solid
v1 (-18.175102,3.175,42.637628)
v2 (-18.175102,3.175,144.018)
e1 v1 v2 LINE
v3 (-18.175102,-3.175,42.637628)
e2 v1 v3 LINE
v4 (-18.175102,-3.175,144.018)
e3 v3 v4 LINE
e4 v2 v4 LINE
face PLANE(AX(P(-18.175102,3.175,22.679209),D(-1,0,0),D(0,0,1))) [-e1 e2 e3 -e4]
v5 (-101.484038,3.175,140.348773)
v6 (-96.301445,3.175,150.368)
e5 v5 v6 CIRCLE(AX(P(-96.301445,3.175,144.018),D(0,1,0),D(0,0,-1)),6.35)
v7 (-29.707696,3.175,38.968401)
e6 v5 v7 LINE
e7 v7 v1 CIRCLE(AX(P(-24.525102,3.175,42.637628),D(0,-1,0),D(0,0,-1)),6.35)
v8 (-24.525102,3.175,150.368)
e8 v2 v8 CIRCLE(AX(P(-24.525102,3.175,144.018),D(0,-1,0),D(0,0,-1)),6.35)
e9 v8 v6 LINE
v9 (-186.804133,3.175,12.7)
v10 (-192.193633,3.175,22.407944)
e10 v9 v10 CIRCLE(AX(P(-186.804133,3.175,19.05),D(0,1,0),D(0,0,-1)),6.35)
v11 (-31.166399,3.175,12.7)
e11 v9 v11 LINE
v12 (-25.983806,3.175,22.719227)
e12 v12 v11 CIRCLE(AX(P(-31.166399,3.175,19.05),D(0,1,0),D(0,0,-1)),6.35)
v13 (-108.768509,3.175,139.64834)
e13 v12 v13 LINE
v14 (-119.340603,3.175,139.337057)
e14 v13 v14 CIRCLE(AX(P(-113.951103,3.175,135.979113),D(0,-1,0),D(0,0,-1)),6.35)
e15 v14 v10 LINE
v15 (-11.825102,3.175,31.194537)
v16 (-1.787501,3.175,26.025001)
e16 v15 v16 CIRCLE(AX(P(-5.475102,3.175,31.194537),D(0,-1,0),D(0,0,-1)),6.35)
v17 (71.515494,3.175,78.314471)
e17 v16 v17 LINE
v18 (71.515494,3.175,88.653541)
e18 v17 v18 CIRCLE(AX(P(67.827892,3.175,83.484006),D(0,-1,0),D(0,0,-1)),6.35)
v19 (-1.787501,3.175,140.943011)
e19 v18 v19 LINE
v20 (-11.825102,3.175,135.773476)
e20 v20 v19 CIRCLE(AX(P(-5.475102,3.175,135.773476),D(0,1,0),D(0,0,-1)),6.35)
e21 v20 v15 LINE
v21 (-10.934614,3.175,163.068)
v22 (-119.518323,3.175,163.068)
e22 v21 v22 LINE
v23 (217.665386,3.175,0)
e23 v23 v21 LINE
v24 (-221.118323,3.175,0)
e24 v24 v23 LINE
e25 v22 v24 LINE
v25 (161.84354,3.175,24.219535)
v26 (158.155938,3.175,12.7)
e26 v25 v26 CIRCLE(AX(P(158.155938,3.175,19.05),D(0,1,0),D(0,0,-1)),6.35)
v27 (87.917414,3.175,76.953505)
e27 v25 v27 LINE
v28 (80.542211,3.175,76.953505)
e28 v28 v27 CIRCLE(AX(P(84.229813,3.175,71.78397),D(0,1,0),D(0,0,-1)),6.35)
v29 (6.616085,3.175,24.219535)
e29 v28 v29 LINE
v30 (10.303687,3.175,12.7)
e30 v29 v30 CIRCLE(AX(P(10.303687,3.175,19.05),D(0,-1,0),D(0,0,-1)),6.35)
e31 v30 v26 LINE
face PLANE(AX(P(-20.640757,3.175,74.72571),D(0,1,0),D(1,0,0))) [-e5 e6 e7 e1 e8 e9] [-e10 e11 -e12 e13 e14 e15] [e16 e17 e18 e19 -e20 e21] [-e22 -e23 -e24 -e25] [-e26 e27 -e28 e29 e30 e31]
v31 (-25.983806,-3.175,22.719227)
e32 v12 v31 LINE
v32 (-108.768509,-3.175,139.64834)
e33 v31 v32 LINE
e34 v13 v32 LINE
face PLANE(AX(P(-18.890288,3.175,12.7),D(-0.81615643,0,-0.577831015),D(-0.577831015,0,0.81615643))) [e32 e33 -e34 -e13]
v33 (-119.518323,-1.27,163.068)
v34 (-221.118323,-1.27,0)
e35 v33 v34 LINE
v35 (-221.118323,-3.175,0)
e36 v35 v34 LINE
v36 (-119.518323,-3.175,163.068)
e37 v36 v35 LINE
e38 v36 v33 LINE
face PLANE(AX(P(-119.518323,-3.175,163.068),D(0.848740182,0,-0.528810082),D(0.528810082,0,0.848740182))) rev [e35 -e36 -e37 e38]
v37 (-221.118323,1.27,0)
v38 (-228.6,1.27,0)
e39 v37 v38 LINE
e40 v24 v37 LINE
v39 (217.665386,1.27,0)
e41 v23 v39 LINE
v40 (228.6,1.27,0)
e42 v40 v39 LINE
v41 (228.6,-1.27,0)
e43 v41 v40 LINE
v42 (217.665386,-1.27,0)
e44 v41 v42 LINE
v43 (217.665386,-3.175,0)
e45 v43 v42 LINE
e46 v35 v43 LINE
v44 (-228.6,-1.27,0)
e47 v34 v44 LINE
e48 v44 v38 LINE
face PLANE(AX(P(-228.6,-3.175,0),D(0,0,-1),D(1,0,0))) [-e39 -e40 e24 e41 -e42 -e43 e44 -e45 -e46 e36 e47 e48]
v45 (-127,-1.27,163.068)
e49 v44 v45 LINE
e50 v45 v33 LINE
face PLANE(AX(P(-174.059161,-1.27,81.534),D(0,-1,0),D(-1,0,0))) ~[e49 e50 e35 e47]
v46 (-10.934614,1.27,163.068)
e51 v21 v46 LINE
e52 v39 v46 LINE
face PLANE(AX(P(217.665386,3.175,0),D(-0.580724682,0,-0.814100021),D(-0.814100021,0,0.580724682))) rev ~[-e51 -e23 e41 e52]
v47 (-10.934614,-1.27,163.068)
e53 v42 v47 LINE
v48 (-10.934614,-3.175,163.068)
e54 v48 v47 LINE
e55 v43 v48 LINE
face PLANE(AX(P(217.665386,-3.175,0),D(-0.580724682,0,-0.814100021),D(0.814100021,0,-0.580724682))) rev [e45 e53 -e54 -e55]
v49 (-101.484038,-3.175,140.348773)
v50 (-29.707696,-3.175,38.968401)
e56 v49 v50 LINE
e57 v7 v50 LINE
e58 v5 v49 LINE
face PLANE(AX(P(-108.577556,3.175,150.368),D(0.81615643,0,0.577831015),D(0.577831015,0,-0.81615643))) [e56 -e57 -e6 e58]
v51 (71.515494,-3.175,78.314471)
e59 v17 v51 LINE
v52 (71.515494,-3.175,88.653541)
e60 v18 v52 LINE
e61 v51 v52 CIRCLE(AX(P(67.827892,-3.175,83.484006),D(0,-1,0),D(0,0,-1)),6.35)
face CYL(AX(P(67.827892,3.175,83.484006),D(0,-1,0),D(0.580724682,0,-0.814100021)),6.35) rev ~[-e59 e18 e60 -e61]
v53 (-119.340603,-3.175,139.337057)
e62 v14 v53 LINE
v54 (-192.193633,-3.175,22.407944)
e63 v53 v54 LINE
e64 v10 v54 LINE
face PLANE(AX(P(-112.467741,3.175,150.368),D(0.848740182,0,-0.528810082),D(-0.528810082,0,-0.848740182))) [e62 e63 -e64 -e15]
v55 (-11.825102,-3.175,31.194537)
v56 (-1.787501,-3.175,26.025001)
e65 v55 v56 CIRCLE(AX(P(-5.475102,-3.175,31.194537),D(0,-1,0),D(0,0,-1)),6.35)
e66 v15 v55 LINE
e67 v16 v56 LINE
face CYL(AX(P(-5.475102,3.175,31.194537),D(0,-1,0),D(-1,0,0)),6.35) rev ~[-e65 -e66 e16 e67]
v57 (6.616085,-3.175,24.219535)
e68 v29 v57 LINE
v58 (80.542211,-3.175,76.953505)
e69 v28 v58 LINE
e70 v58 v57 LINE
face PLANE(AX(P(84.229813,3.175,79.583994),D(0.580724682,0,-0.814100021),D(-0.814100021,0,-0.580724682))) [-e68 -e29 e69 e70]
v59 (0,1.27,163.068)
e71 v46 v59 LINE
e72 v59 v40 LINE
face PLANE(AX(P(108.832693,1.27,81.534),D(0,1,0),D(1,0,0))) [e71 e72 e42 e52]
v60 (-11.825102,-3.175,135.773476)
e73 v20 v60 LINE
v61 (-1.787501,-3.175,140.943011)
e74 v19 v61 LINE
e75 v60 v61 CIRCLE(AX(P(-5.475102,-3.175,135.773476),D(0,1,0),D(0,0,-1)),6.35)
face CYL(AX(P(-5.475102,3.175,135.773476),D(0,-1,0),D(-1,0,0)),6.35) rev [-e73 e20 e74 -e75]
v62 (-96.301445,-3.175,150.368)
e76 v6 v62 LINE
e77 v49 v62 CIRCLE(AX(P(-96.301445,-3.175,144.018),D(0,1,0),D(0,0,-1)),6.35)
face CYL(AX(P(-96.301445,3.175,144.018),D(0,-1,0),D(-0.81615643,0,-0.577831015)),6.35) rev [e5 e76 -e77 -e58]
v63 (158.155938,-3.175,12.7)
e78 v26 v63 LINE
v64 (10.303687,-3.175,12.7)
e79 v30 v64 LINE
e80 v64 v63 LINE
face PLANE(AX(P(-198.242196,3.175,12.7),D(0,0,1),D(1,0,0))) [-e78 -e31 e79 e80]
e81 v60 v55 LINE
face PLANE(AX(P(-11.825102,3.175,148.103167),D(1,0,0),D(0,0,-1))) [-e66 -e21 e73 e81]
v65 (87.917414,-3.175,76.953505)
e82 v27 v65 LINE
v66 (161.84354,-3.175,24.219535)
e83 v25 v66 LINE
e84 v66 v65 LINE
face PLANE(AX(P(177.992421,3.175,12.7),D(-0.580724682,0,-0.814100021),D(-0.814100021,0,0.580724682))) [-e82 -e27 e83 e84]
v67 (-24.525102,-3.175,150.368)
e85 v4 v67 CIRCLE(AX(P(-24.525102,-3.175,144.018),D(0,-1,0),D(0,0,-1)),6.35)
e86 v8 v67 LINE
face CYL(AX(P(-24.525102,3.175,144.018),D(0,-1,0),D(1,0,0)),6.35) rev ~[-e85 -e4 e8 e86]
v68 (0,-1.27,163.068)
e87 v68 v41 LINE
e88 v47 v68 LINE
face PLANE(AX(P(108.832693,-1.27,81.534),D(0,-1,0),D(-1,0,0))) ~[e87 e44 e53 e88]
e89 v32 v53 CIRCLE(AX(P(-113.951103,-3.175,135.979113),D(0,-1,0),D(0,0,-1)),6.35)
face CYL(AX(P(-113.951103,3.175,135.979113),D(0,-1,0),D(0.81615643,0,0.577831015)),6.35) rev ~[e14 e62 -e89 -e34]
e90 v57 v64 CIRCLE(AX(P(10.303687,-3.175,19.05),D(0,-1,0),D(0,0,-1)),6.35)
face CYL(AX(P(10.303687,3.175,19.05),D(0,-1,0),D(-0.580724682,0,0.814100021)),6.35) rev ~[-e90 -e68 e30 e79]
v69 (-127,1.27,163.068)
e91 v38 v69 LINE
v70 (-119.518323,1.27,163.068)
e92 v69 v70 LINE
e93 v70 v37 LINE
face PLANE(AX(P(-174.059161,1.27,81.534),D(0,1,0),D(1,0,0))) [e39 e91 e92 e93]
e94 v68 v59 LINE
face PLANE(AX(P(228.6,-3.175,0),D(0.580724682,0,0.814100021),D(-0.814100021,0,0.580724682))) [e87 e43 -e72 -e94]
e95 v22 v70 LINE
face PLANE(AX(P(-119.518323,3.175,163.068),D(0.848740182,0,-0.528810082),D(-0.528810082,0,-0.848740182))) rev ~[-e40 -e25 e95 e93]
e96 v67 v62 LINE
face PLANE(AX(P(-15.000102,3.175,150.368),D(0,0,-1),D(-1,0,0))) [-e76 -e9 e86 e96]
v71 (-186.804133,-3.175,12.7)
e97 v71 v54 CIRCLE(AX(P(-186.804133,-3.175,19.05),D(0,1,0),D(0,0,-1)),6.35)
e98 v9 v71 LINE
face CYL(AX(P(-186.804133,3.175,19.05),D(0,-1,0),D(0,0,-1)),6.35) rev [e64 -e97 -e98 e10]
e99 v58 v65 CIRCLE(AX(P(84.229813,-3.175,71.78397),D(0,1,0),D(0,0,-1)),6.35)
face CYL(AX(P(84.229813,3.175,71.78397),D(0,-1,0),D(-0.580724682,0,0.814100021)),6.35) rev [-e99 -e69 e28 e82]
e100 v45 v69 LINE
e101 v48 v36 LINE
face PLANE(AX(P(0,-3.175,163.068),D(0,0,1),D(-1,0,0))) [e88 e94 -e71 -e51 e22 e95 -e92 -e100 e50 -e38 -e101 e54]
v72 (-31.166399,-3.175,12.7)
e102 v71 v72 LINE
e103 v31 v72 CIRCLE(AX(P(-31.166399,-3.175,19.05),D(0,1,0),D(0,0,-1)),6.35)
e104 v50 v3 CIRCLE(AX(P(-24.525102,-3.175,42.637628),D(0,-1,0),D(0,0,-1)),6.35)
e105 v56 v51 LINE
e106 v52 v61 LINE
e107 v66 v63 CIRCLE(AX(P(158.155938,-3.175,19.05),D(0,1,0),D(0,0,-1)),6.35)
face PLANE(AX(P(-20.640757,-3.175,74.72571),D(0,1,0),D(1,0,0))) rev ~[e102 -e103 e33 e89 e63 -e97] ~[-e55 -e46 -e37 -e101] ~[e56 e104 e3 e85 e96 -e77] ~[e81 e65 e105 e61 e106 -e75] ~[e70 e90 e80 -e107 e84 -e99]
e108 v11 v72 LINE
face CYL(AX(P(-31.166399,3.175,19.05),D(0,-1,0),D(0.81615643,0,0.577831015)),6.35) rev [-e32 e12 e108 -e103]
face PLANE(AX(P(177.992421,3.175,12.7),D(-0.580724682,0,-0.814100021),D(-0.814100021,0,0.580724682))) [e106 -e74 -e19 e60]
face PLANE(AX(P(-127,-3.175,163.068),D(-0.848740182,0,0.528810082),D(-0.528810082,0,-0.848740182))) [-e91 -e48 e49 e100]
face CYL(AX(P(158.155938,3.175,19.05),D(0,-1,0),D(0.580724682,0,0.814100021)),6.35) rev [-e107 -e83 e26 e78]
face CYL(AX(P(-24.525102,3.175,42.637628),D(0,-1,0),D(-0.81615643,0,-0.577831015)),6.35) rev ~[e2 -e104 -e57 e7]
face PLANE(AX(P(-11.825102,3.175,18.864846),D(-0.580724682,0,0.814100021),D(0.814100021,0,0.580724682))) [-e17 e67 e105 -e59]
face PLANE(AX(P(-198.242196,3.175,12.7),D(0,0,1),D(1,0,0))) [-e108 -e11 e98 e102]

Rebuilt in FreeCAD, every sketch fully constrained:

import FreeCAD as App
import Part
import Sketcher

V = App.Vector
Q = App.Units.Quantity


def edges_at(feature, points):
    """Names of the edges that pass closest to the given points."""
    edges = feature.Shape.Edges
    near = lambda p: min(range(len(edges)), key=lambda i: edges[i].distToShape(Part.Vertex(*p))[0])
    return sorted({f"Edge{near(p) + 1}" for p in points})

doc = App.newDocument("Part")
body = doc.addObject("PartDesign::Body", "Body")

sketch1 = body.newObject("Sketcher::SketchObject", "Sketch")
sketch1.AttachmentSupport = (doc.getObject("XZ_Plane"), [""])
sketch1.MapMode = "FlatFace"
sketch1.addGeometry([
    Part.LineSegment(V(229, 0, 0), V(-229, 0, 0)),
    Part.LineSegment(V(-229, 0, 0), V(-127, 163, 0)),
    Part.LineSegment(V(-127, 163, 0), V(0, 163, 0)),
    Part.LineSegment(V(0, 163, 0), V(229, 0, 0)),
], False)
sketch1.addConstraint([
    Sketcher.Constraint("Coincident", 0, 2, 1, 1),
    Sketcher.Constraint("Coincident", 1, 2, 2, 1),
    Sketcher.Constraint("Coincident", 2, 2, 3, 1),
    Sketcher.Constraint("Coincident", 3, 2, 0, 1),
    Sketcher.Constraint("Horizontal", 0),
    Sketcher.Constraint("Horizontal", 2),
    Sketcher.Constraint("Symmetric", 0, 2, 3, 2, -1, 1),
    Sketcher.Constraint("PointOnObject", 2, 2, -2),
    Sketcher.Constraint("DistanceX", 0, 2, 0, 1, Q("18 in")),
    Sketcher.Constraint("DistanceX", 2, 1, 2, 2, Q("5 in")),
    Sketcher.Constraint("DistanceY", -1, 1, 1, 2, Q("6.42 in")),
])
pad1 = body.newObject("PartDesign::Pad", "Pad")
pad1.Profile = sketch1
pad1.Type = "TwoLengths"
pad1.Length = Q("0.125 in")
pad1.Length2 = Q("0.125 in")
pad1.Reversed = True

sketch2 = body.newObject("Sketcher::SketchObject", "Sketch001")
sketch2.AttachmentSupport = (doc.getObject("XZ_Plane"), [""])
sketch2.MapMode = "FlatFace"
sketch2.AttachmentOffset = App.Placement(V(0, 0, -0.125 * 25.4), App.Rotation())
sketch2.addGeometry([
    Part.LineSegment(V(-229, 0, 0), V(-127, 163, 0)),
    Part.LineSegment(V(-127, 163, 0), V(-120, 163, 0)),
    Part.LineSegment(V(-120, 163, 0), V(-221, 0, 0)),
    Part.LineSegment(V(-221, 0, 0), V(-229, 0, 0)),
    Part.LineSegment(V(0, 163, 0), V(229, 0, 0)),
    Part.LineSegment(V(229, 0, 0), V(218, 0, 0)),
    Part.LineSegment(V(218, 0, 0), V(-11, 163, 0)),
    Part.LineSegment(V(-11, 163, 0), V(0, 163, 0)),
], False)
sketch2.addConstraint([
    Sketcher.Constraint("Coincident", 0, 2, 1, 1),
    Sketcher.Constraint("Coincident", 1, 2, 2, 1),
    Sketcher.Constraint("Coincident", 2, 2, 3, 1),
    Sketcher.Constraint("Coincident", 3, 2, 0, 1),
    Sketcher.Constraint("Coincident", 4, 2, 5, 1),
    Sketcher.Constraint("Coincident", 5, 2, 6, 1),
    Sketcher.Constraint("Coincident", 6, 2, 7, 1),
    Sketcher.Constraint("Coincident", 7, 2, 4, 1),
    Sketcher.Constraint("Horizontal", 1),
    Sketcher.Constraint("Horizontal", 3),
    Sketcher.Constraint("Horizontal", 5),
    Sketcher.Constraint("Horizontal", 7),
    Sketcher.Constraint("Symmetric", 3, 2, 4, 2, -1, 1),
    Sketcher.Constraint("PointOnObject", 2, 2, -1),
    Sketcher.Constraint("PointOnObject", 7, 2, -2),
    Sketcher.Constraint("Parallel", 0, 2),
    Sketcher.Constraint("Parallel", 4, 6),
    Sketcher.Constraint("Horizontal", 1, 2, 6, 2),
    Sketcher.Constraint("DistanceX", 0, 2, -1, 1, Q("5 in")),
    Sketcher.Constraint("DistanceX", 3, 2, -1, 1, Q("9 in")),
    Sketcher.Constraint("DistanceY", -1, 1, 0, 2, Q("6.42 in")),
    Sketcher.Constraint("DistanceX", 1, 1, 1, 2, Q("7.481677 mm")),
    Sketcher.Constraint("DistanceX", 5, 2, 5, 1, Q("10.934614 mm")),
])
pocket1 = body.newObject("PartDesign::Pocket", "Pocket")
pocket1.Profile = sketch2
pocket1.Length = Q("0.075 in")
pocket1.Reversed = True
doc.recompute()

mirrored = body.newObject("PartDesign::Mirrored", "Mirrored")
mirrored.Originals = [pocket1]
mirrored.MirrorPlane = (doc.getObject("XZ_Plane"), [""])
body.Tip = mirrored

sketch3 = body.newObject("Sketcher::SketchObject", "Sketch002")
sketch3.AttachmentSupport = (doc.getObject("XZ_Plane"), [""])
sketch3.MapMode = "FlatFace"
sketch3.AttachmentOffset = App.Placement(V(0, 0, -0.125 * 25.4), App.Rotation())
sketch3.addGeometry([
    Part.LineSegment(V(178, 13, 0), V(-198, 13, 0)),
    Part.LineSegment(V(-198, 13, 0), V(-112, 150, 0)),
    Part.LineSegment(V(-112, 150, 0), V(-15, 150, 0)),
    Part.LineSegment(V(-15, 150, 0), V(178, 13, 0)),
], False)
sketch3.addConstraint([
    Sketcher.Constraint("Coincident", 0, 2, 1, 1),
    Sketcher.Constraint("Coincident", 1, 2, 2, 1),
    Sketcher.Constraint("Coincident", 2, 2, 3, 1),
    Sketcher.Constraint("Coincident", 3, 2, 0, 1),
    Sketcher.Constraint("Horizontal", 0),
    Sketcher.Constraint("Horizontal", 2),
    Sketcher.Constraint("DistanceY", -1, 1, 0, 2, Q("0.5 in")),
    Sketcher.Constraint("DistanceY", -1, 1, 1, 2, Q("5.92 in")),
    Sketcher.Constraint("DistanceX", 2, 1, 2, 2, Q("97.467639 mm")),
    Sketcher.Constraint("Distance", 1, Q("162.20276 mm")),
    Sketcher.Constraint("DistanceX", 0, 2, 0, 1, Q("376.234617 mm")),
    Sketcher.Constraint("DistanceX", 1, 2, -1, 1, Q("112.467741 mm")),
])
pocket2 = body.newObject("PartDesign::Pocket", "Pocket001")
pocket2.Profile = sketch3
pocket2.Length = Q("0.25 in")
pocket2.Reversed = True

sketch4 = body.newObject("Sketcher::SketchObject", "Sketch003")
sketch4.AttachmentSupport = (doc.getObject("XZ_Plane"), [""])
sketch4.MapMode = "FlatFace"
sketch4.AttachmentOffset = App.Placement(V(0, 0, -0.125 * 25.4), App.Rotation())
sketch4.addGeometry([
    Part.LineSegment(V(-18.9, 12.7, 0), V(-114.3, 147.4, 0)),
    Part.LineSegment(V(-114.3, 147.4, 0), V(-112.5, 150.4, 0)),
    Part.LineSegment(V(-112.5, 150.4, 0), V(-108.6, 150.4, 0)),
    Part.LineSegment(V(-108.6, 150.4, 0), V(-18.2, 22.7, 0)),
    Part.LineSegment(V(-18.2, 22.7, 0), V(-18.2, 150.4, 0)),
    Part.LineSegment(V(-18.2, 150.4, 0), V(-15, 150.4, 0)),
    Part.LineSegment(V(-15, 150.4, 0), V(-11.8, 148.1, 0)),
    Part.LineSegment(V(-11.8, 148.1, 0), V(-11.8, 18.9, 0)),
    Part.LineSegment(V(-11.8, 18.9, 0), V(78.8, 83.5, 0)),
    Part.LineSegment(V(78.8, 83.5, 0), V(84.2, 79.6, 0)),
    Part.LineSegment(V(84.2, 79.6, 0), V(-9.5, 12.7, 0)),
    Part.LineSegment(V(-9.5, 12.7, 0), V(-18.9, 12.7, 0)),
], False)
sketch4.addConstraint([
    Sketcher.Constraint("Coincident", 0, 2, 1, 1),
    Sketcher.Constraint("Coincident", 1, 2, 2, 1),
    Sketcher.Constraint("Coincident", 2, 2, 3, 1),
    Sketcher.Constraint("Coincident", 3, 2, 4, 1),
    Sketcher.Constraint("Coincident", 4, 2, 5, 1),
    Sketcher.Constraint("Coincident", 5, 2, 6, 1),
    Sketcher.Constraint("Coincident", 6, 2, 7, 1),
    Sketcher.Constraint("Coincident", 7, 2, 8, 1),
    Sketcher.Constraint("Coincident", 8, 2, 9, 1),
    Sketcher.Constraint("Coincident", 9, 2, 10, 1),
    Sketcher.Constraint("Coincident", 10, 2, 11, 1),
    Sketcher.Constraint("Coincident", 11, 2, 0, 1),
    Sketcher.Constraint("Horizontal", 2),
    Sketcher.Constraint("Vertical", 4),
    Sketcher.Constraint("Horizontal", 5),
    Sketcher.Constraint("Vertical", 7),
    Sketcher.Constraint("Horizontal", 11),
    Sketcher.Constraint("Parallel", 0, 3),
    Sketcher.Constraint("Parallel", 6, 9),
    Sketcher.Constraint("Parallel", 8, 10),
    Sketcher.Constraint("Horizontal", 2, 2, 4, 2),
    Sketcher.Constraint("DistanceY", -1, 1, 10, 2, Q("0.5 in")),
    Sketcher.Constraint("DistanceX", 5, 1, 5, 2, Q("0.125 in")),
    Sketcher.Constraint("DistanceY", -1, 1, 1, 2, Q("5.92 in")),
    Sketcher.Constraint("DistanceX", 4, 2, 6, 2, Q("0.25 in")),
    Sketcher.Constraint("DistanceY", 4, 1, 4, 2, Q("127.688791 mm")),
    Sketcher.Constraint("DistanceY", 7, 2, 7, 1, Q("129.238321 mm")),
    Sketcher.Constraint("DistanceX", 10, 2, 8, 2, Q("88.295301 mm")),
    Sketcher.Constraint("DistanceX", 11, 2, 9, 2, Q("103.120101 mm")),
    Sketcher.Constraint("Distance", 3, Q("156.451369 mm")),
    Sketcher.Constraint("DistanceX", 2, 1, 2, 2, Q("3.890186 mm")),
    Sketcher.Constraint("DistanceX", 11, 2, 11, 1, Q("9.357492 mm")),
    Sketcher.Constraint("DistanceY", -1, 1, 0, 2, Q("147.445341 mm")),
    Sketcher.Constraint("DistanceX", 1, 2, -1, 1, Q("112.467741 mm")),
    Sketcher.Constraint("DistanceX", 11, 2, -1, 1, Q("18.890288 mm")),
    Sketcher.Constraint("DistanceY", 8, 2, 6, 2, Q("64.619161 mm")),
])
pad2 = body.newObject("PartDesign::Pad", "Pad001")
pad2.Profile = sketch4
pad2.Length = Q("0.25 in")
doc.recompute()

fillet = body.newObject("PartDesign::Fillet", "Fillet")
fillet.Base = (pad2, edges_at(pad2, [
    (-18.175, 0, 150.368),
    (-18.175, 0, 22.679),
    (-108.578, 0, 150.368),
    (-114.289, 0, 147.445),
    (-18.89, 0, 12.7),
    (-9.533, 0, 12.7),
    (84.23, 0, 79.584),
    (78.763, 0, 83.484),
    (-11.825, 0, 18.865),
    (-11.825, 0, 148.103),
]))
fillet.Radius = Q("0.25 in")
doc.recompute()

fillet2 = body.newObject("PartDesign::Fillet", "Fillet001")
fillet2.Base = (fillet, edges_at(fillet, [(-198.242, 0, 12.7), (177.992, 0, 12.7)]))
fillet2.Radius = Q("0.25 in")

doc.recompute()
